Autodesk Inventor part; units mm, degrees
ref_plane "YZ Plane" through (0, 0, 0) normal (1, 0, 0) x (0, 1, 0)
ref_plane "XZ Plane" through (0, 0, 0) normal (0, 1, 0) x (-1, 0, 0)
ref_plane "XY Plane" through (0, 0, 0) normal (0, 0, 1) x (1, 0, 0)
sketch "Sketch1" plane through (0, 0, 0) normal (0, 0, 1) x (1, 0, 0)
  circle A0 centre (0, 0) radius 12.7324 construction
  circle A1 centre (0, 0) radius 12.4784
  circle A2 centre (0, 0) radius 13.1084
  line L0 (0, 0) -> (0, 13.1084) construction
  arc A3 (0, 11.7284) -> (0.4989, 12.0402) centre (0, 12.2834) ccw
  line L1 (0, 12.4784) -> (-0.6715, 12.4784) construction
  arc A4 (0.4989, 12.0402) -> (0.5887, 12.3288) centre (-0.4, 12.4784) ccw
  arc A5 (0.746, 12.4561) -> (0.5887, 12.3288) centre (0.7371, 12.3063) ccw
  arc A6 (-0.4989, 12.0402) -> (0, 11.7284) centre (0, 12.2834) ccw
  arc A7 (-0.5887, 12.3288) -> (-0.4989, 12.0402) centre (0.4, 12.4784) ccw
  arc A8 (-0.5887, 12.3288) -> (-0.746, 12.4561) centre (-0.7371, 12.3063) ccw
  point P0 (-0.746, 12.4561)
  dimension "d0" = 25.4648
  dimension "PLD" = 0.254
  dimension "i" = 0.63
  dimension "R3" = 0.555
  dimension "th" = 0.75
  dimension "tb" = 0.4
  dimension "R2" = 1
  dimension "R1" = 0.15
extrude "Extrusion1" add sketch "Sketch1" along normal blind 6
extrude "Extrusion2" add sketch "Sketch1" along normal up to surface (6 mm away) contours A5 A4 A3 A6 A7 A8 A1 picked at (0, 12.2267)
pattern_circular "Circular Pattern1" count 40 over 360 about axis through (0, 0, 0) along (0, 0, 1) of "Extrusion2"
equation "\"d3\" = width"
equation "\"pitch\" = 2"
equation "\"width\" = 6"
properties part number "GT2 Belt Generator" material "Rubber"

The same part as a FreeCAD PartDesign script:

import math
import FreeCAD as App
import Part
import Sketcher

V = App.Vector
Q = App.Units.Quantity

doc = App.newDocument("Part")
params = doc.addObject("Spreadsheet::Sheet", "Params")
for row, (alias, value) in enumerate([
    ("pad1_length", "6 mm"),
    ("sketch2_radius", "0.15 mm"),
    ("pad2_length", "6 mm"),
], start=1):
    params.set(f"A{row}", alias)
    params.set(f"B{row}", "=" + value)
    params.setAlias(f"B{row}", alias)

body = doc.addObject("PartDesign::Body", "Body")

# Sketch on XY plane
sketch1 = doc.addObject("Sketcher::SketchObject", "Sketch")
body.addObject(sketch1)
sketch1.AttachmentSupport = (doc.XY_Plane, [""])
sketch1.MapMode = "FlatFace"
sketch1.addGeometry([
    Part.Circle(V(0, 0, 0), V(0, 0, 1), 13),
    Part.Circle(V(0, 0, 0), V(0, 0, 1), 12),
], False)
sketch1.addConstraint([
    Sketcher.Constraint("Coincident", 0, 3, -1, 1),
    Sketcher.Constraint("Coincident", 1, 3, -1, 1),
    Sketcher.Constraint("Diameter", 0, Q("26.2168 mm")),
    Sketcher.Constraint("Diameter", 1, Q("24.9568 mm")),
])
pad1 = doc.addObject("PartDesign::Pad", "Pad")
body.addObject(pad1)
pad1.Profile = sketch1
pad1.setExpression("Length", "Params.pad1_length")

# Sketch on XY plane
sketch2 = doc.addObject("Sketcher::SketchObject", "Sketch001")
body.addObject(sketch2)
sketch2.AttachmentSupport = (doc.XY_Plane, [""])
sketch2.MapMode = "FlatFace"
sketch2.addGeometry([
    Part.ArcOfCircle(Part.Circle(V(0.74, 12.31, 0), V(0, 0, 1), 0.15), math.radians(87), math.radians(171)),  # 0
    Part.ArcOfCircle(Part.Circle(V(0, 0, 0), V(0, 0, 1), 12.48), math.radians(86.57), math.radians(93.43)),  # 1
    Part.ArcOfCircle(Part.Circle(V(-0.74, 12.31, 0), V(0, 0, 1), 0.15), math.radians(9), math.radians(93)),  # 2
    Part.ArcOfCircle(Part.Circle(V(0.4, 12.48, 0), V(0, 0, 1), 1), math.radians(-171.38), math.radians(-154.05)),  # 3
    Part.ArcOfCircle(Part.Circle(V(0, 12.28, 0), V(0, 0, 1), 0.55), math.radians(-154), math.radians(-90)),  # 4
    Part.ArcOfCircle(Part.Circle(V(0, 12.28, 0), V(0, 0, 1), 0.56), math.radians(-90), math.radians(-26)),  # 5
    Part.ArcOfCircle(Part.Circle(V(-0.4, 12.48, 0), V(0, 0, 1), 1), math.radians(-26), math.radians(-8.57)),  # 6
], False)
sketch2.addConstraint([
    Sketcher.Constraint("Tangent", 0, 1, 1, 1),
    Sketcher.Constraint("Tangent", 1, 2, 2, 2),
    Sketcher.Constraint("Tangent", 2, 1, 3, 1),
    Sketcher.Constraint("Coincident", 3, 2, 4, 1),
    Sketcher.Constraint("Tangent", 4, 2, 5, 1),
    Sketcher.Constraint("Tangent", 5, 2, 6, 1),
    Sketcher.Constraint("Coincident", 6, 2, 0, 2),
    Sketcher.Constraint("Coincident", 1, 3, -1, 1),
    Sketcher.Constraint("Equal", 0, 2),
    Sketcher.Constraint("Equal", 4, 5),
    Sketcher.Constraint("Symmetric", 3, 2, 5, 2, -2),
    Sketcher.Constraint("Symmetric", 2, 1, 6, 2, -2),
    Sketcher.Constraint("PointOnObject", 4, 2, -2),
    Sketcher.Constraint("Radius", 0, Q("0.15 mm")),
    Sketcher.Constraint("Radius", 4, Q("0.555 mm")),
    Sketcher.Constraint("Radius", 1, Q("12.4784 mm")),
    Sketcher.Constraint("Radius", 3, Q("1.0028 mm")),
    Sketcher.Constraint("Radius", 6, Q("0.9971 mm")),
    Sketcher.Constraint("DistanceY", 6, 2, 3, 3, Q("0.1503 mm")),
    Sketcher.Constraint("DistanceX", -1, 1, 0, 3, Q("0.737 mm")),
])
sketch2.setExpression("Constraints[13]", "Params.sketch2_radius")
pad2 = doc.addObject("PartDesign::Pad", "Pad001")
body.addObject(pad2)
pad2.Profile = sketch2
pad2.setExpression("Length", "Params.pad2_length")
doc.recompute()

polarpattern = doc.addObject("PartDesign::PolarPattern", "PolarPattern")
body.addObject(polarpattern)
polarpattern.Originals = [pad2]
polarpattern.Axis = (doc.Z_Axis, [""])
polarpattern.Angle = 360
polarpattern.Occurrences = 40
body.Tip = polarpattern

doc.recompute()
